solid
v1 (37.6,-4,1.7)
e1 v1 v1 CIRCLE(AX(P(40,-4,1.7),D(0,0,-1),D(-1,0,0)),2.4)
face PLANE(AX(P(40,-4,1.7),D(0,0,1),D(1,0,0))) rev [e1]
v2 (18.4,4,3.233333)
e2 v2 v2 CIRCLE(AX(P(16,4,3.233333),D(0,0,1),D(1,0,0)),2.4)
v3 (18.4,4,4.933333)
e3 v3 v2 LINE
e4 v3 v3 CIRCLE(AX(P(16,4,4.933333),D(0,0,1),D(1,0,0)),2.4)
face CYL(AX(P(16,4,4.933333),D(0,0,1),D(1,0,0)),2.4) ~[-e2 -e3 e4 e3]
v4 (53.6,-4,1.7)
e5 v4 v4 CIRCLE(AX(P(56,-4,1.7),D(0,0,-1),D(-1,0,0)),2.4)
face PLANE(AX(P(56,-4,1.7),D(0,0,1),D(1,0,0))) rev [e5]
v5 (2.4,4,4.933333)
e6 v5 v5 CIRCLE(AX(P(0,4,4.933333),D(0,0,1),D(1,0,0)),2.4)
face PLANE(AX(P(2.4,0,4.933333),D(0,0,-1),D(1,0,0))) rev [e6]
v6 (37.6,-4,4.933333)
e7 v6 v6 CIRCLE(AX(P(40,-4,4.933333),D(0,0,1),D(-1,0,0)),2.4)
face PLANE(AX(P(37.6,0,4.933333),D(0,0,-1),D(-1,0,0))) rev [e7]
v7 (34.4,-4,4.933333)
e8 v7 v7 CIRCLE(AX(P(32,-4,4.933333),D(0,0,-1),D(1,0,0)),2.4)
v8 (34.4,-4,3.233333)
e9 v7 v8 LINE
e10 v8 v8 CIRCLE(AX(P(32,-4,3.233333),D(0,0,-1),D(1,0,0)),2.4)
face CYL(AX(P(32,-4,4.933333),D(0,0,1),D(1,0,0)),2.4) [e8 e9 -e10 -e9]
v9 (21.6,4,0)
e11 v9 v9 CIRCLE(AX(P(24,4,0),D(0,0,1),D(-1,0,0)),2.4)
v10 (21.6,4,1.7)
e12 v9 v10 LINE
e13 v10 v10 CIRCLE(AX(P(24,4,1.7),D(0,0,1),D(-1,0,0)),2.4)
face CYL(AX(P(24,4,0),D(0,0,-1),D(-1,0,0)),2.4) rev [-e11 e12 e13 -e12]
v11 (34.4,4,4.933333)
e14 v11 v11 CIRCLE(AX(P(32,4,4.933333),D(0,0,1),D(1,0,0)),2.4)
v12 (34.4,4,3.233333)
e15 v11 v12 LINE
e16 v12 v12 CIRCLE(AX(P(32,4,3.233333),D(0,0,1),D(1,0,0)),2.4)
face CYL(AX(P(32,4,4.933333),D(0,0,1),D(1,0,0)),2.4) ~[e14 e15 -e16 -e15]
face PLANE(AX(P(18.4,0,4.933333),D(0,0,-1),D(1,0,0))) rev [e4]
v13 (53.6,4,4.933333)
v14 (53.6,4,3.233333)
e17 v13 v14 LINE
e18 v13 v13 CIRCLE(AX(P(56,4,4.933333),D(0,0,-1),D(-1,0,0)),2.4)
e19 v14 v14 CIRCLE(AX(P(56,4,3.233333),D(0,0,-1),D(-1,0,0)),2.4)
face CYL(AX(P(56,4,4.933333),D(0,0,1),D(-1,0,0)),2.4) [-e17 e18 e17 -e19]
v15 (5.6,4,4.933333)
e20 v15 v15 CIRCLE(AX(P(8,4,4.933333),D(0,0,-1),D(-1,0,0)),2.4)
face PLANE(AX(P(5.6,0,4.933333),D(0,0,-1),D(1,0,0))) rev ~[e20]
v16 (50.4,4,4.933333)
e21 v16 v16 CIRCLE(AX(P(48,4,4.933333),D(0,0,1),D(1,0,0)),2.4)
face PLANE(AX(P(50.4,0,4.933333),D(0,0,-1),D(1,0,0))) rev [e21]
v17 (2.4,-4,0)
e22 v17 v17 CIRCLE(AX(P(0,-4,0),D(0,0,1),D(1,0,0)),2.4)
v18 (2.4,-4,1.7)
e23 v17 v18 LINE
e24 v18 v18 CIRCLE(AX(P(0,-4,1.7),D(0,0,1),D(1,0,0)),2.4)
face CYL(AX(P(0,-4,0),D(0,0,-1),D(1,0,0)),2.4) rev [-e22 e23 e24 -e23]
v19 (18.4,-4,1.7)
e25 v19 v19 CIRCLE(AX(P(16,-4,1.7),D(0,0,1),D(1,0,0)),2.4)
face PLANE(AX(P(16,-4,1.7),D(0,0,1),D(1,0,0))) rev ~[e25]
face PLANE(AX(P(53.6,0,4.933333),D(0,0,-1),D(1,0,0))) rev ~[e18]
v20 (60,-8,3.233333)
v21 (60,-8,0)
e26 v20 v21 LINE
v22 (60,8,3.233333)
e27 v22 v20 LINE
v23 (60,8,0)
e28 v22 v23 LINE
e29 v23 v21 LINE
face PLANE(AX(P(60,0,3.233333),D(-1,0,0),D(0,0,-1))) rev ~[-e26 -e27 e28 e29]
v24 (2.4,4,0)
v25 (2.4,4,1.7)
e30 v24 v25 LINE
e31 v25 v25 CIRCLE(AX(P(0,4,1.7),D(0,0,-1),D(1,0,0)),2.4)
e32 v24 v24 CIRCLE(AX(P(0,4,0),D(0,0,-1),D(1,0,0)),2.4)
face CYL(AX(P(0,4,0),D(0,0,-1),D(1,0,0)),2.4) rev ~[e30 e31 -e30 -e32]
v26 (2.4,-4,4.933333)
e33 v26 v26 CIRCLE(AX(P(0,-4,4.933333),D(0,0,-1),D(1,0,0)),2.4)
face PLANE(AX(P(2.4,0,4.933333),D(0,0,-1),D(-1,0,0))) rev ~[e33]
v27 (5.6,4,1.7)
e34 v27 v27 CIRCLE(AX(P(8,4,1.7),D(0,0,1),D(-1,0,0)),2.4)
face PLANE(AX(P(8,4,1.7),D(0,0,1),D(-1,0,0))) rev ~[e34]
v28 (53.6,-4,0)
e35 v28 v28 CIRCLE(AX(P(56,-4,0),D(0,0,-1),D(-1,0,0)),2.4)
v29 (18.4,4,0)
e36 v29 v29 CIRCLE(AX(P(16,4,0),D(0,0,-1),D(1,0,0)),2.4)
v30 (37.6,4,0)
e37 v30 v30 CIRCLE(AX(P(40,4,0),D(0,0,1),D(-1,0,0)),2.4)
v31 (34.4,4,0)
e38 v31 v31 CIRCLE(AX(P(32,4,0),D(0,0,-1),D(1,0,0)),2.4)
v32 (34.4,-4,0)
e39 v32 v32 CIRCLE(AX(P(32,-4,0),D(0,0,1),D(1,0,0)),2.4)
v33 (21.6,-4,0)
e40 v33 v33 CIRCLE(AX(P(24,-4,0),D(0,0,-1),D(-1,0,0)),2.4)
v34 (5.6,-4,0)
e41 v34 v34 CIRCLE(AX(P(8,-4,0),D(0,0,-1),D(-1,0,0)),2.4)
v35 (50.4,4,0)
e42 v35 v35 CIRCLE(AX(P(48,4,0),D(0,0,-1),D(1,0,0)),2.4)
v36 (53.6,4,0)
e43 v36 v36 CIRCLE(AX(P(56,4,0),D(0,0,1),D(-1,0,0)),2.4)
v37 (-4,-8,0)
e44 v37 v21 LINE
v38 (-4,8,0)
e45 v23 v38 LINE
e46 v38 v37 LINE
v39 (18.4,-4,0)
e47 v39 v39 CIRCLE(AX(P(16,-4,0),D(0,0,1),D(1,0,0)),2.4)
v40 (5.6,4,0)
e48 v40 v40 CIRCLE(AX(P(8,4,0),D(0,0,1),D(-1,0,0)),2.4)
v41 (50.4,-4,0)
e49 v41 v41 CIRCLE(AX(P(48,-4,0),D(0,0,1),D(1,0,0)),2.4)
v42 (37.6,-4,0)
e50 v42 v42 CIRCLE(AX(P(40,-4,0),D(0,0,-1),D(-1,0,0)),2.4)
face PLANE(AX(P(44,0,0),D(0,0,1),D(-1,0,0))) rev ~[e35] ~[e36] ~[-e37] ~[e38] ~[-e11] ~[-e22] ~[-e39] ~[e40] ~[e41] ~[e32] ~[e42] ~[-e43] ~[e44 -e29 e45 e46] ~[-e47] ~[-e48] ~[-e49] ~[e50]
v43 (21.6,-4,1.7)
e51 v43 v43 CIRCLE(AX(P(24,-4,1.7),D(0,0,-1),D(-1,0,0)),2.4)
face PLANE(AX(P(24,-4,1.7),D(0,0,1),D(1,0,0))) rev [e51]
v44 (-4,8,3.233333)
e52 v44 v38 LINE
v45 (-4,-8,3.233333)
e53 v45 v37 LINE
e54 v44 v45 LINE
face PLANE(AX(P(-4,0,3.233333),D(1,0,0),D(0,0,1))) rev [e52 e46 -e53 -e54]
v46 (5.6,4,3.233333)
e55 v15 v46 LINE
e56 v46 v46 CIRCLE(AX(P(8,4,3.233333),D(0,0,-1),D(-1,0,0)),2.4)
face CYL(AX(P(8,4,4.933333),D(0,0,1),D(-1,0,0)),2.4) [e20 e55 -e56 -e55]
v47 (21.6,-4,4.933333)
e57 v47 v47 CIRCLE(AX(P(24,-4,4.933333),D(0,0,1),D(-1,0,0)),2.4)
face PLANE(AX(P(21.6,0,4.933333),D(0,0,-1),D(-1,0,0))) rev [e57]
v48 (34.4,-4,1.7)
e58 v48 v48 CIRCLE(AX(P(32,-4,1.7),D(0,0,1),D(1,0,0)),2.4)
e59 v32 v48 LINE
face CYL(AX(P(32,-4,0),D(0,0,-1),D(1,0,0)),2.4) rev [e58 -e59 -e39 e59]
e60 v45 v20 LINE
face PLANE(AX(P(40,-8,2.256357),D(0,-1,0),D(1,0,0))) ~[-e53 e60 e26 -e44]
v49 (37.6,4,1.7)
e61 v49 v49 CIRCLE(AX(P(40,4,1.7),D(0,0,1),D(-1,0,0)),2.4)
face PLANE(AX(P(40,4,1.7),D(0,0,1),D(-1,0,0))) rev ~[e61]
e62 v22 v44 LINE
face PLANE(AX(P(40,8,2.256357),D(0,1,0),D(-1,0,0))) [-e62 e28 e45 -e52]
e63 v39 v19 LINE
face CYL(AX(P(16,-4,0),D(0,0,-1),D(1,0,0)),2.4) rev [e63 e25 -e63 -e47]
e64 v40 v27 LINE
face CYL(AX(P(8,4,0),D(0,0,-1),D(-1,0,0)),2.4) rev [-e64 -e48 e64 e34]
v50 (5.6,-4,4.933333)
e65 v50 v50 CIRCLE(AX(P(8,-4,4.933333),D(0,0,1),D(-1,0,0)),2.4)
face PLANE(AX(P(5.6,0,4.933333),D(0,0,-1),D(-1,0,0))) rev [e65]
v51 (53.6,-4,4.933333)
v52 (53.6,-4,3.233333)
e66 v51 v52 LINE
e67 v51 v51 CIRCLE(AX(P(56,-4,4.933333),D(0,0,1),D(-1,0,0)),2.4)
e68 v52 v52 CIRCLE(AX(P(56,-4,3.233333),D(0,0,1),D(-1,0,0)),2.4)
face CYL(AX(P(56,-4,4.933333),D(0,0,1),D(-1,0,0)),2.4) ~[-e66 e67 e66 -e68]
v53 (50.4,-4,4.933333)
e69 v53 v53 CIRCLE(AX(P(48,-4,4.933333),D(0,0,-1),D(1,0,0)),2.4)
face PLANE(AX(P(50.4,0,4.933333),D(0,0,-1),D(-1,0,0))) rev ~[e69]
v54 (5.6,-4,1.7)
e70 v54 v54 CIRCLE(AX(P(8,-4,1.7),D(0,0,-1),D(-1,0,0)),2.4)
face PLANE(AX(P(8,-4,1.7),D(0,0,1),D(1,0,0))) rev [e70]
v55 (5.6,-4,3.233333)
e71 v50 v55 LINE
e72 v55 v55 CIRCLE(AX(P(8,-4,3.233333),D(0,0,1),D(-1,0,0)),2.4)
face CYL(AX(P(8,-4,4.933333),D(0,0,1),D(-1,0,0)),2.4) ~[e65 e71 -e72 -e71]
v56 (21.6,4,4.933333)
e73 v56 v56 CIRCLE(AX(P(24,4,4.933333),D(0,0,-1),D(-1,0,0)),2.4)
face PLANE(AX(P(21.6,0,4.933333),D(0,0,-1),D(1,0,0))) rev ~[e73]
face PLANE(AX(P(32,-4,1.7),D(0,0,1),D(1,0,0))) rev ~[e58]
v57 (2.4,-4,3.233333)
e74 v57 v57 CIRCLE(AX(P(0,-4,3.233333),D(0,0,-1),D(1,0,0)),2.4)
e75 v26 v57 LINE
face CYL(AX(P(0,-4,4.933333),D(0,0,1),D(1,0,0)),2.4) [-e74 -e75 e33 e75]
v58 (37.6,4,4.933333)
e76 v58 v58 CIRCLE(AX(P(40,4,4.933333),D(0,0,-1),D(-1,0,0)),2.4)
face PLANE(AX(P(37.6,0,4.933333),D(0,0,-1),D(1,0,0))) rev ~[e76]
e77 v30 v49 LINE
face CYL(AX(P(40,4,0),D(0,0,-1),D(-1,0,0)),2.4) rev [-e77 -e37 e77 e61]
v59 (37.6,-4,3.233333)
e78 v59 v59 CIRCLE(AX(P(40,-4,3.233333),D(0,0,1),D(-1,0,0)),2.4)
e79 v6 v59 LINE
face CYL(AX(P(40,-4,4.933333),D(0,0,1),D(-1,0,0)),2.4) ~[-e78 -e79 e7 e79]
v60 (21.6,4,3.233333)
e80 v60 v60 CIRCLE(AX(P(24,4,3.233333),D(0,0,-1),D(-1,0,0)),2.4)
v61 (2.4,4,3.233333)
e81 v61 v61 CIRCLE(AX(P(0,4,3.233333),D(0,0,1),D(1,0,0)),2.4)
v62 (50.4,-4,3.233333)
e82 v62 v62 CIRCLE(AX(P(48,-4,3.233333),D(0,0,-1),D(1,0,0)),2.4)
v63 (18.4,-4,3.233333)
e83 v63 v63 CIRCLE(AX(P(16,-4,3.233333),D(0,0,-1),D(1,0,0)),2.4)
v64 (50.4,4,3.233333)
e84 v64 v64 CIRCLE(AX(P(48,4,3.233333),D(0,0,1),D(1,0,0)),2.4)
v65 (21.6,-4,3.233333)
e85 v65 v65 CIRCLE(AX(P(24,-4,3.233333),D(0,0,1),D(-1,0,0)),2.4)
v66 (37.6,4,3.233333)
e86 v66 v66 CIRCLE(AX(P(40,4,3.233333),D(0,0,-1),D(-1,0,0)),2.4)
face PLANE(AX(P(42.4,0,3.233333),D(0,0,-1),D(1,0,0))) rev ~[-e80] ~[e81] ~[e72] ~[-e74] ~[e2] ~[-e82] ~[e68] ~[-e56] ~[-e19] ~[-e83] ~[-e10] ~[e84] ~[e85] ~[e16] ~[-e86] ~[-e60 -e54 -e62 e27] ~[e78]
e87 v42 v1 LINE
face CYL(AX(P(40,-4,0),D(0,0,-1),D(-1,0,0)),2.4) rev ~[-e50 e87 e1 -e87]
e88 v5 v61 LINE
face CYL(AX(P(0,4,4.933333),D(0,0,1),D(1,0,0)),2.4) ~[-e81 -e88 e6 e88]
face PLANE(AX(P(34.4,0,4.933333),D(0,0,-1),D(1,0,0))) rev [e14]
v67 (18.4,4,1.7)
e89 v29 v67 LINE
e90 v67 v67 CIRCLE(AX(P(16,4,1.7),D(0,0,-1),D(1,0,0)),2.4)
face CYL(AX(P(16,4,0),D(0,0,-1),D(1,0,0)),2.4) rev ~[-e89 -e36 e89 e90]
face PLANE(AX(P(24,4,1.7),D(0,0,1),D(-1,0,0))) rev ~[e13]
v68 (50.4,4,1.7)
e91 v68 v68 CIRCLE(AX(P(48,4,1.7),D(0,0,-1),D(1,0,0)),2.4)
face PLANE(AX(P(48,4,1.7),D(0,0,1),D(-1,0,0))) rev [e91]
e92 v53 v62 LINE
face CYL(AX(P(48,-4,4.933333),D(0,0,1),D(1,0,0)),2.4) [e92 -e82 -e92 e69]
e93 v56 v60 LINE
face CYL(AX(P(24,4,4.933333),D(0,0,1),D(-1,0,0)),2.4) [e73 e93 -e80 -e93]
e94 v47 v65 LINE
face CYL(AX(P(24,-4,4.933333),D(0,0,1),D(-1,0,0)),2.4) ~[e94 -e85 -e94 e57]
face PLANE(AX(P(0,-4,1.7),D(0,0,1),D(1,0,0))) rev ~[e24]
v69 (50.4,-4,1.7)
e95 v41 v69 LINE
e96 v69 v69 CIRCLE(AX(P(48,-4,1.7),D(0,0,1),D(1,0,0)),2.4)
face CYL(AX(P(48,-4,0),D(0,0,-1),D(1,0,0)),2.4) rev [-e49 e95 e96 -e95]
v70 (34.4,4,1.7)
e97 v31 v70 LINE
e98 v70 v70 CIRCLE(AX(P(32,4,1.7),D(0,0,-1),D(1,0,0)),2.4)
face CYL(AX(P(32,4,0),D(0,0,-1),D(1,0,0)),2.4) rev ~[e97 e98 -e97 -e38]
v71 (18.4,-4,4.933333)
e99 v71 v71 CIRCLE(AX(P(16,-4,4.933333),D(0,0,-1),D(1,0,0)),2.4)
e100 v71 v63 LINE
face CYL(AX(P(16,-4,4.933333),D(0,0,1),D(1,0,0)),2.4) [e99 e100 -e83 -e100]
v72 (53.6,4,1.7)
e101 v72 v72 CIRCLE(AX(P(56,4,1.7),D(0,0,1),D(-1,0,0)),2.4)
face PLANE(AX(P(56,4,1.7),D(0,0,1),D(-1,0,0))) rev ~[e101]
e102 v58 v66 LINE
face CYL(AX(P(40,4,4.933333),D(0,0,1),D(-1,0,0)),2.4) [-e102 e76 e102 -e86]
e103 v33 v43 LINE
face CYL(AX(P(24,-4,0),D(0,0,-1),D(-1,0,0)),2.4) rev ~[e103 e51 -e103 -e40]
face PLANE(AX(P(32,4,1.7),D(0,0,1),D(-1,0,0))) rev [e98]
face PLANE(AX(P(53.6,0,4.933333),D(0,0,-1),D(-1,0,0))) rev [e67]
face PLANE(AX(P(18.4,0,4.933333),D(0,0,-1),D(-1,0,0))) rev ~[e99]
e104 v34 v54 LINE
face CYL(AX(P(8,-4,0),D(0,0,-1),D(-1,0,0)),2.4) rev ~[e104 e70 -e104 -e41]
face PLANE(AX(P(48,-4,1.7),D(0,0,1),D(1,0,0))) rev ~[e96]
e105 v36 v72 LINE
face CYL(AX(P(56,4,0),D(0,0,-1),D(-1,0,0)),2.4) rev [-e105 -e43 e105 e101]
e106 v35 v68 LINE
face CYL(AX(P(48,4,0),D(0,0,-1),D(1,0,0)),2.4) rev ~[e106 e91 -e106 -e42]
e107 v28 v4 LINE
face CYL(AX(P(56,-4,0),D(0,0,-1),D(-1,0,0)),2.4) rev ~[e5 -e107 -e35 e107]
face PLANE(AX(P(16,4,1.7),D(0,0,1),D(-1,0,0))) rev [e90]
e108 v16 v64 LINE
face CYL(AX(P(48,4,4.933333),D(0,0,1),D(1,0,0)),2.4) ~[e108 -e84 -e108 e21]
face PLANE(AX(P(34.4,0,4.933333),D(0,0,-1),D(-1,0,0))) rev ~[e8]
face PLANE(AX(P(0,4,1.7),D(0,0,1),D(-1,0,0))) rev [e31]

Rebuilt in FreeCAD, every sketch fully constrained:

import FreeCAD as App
import Part
import Sketcher
from FreeCAD import Vector

doc = App.newDocument("Part")
body = doc.addObject("PartDesign::Body", "Body")

# Sketch on XZ plane
sketch1 = body.newObject("Sketcher::SketchObject", "Sketch")
sketch1.AttachmentSupport = (doc.getObject("XZ_Plane"), [""])
sketch1.MapMode = "FlatFace"
sketch1.addGeometry([
    Part.LineSegment(Vector(-2.4, 3.2, 0), Vector(-4, 3.2, 0)),  # 0
    Part.LineSegment(Vector(-4, 3.2, 0), Vector(-4, 0, 0)),  # 1
    Part.LineSegment(Vector(-4, 0, 0), Vector(4, 0, 0)),  # 2
    Part.LineSegment(Vector(4, 0, 0), Vector(4, 3.2, 0)),  # 3
    Part.LineSegment(Vector(4, 3.2, 0), Vector(2.4, 3.2, 0)),  # 4
    Part.LineSegment(Vector(2.4, 3.2, 0), Vector(2.4, 4.9, 0)),  # 5
    Part.LineSegment(Vector(2.4, 4.9, 0), Vector(-2.4, 4.9, 0)),  # 6
    Part.LineSegment(Vector(-2.4, 4.9, 0), Vector(-2.4, 3.2, 0)),  # 7
], False)
sketch1.addConstraint([
    Sketcher.Constraint("Coincident", 0, 2, 1, 1),
    Sketcher.Constraint("Coincident", 1, 2, 2, 1),
    Sketcher.Constraint("Coincident", 2, 2, 3, 1),
    Sketcher.Constraint("Coincident", 3, 2, 4, 1),
    Sketcher.Constraint("Coincident", 4, 2, 5, 1),
    Sketcher.Constraint("Coincident", 5, 2, 6, 1),
    Sketcher.Constraint("Coincident", 6, 2, 7, 1),
    Sketcher.Constraint("Coincident", 7, 2, 0, 1),
    Sketcher.Constraint("Horizontal", 0),
    Sketcher.Constraint("Vertical", 1),
    Sketcher.Constraint("Horizontal", 2),
    Sketcher.Constraint("Vertical", 3),
    Sketcher.Constraint("Horizontal", 4),
    Sketcher.Constraint("Vertical", 5),
    Sketcher.Constraint("Horizontal", 6),
    Sketcher.Constraint("Vertical", 7),
    Sketcher.Constraint("Symmetric", 1, 2, 2, 2, -1, 1),
    Sketcher.Constraint("Symmetric", 4, 2, 7, 2, -2),
    Sketcher.Constraint("DistanceX", 2, 1, 2, 2, 8.0),
    Sketcher.Constraint("DistanceX", 0, 2, 0, 1, 1.6),
    Sketcher.Constraint("DistanceY", 5, 1, 5, 2, 1.7),
    Sketcher.Constraint("DistanceY", 1, 2, 1, 1, 3.233333),
])
pad1 = body.newObject("PartDesign::Pad", "Pad")
pad1.Profile = sketch1
pad1.Length = 8

# Sketch on XY plane
sketch2 = body.newObject("Sketcher::SketchObject", "Sketch001")
sketch2.AttachmentSupport = (doc.getObject("XY_Plane"), [""])
sketch2.MapMode = "FlatFace"
sketch2.AttachmentOffset = App.Placement(Vector(0, 0, 4.933333), App.Rotation())
sketch2.addGeometry([
    Part.LineSegment(Vector(-4, 0, 0), Vector(-4, -8, 0)),  # 0
    Part.LineSegment(Vector(-4, -8, 0), Vector(4, -8, 0)),  # 1
    Part.LineSegment(Vector(4, -8, 0), Vector(4, 0, 0)),  # 2
    Part.LineSegment(Vector(4, 0, 0), Vector(-4, 0, 0)),  # 3
    Part.Circle(Vector(0, -4, 0), Vector(0, 0, 1), 2.4),  # 4
], False)
sketch2.addConstraint([
    Sketcher.Constraint("Coincident", 0, 2, 1, 1),
    Sketcher.Constraint("Coincident", 1, 2, 2, 1),
    Sketcher.Constraint("Coincident", 2, 2, 3, 1),
    Sketcher.Constraint("Coincident", 3, 2, 0, 1),
    Sketcher.Constraint("Vertical", 0),
    Sketcher.Constraint("Horizontal", 1),
    Sketcher.Constraint("Vertical", 2),
    Sketcher.Constraint("Horizontal", 3),
    Sketcher.Constraint("Symmetric", 2, 2, 3, 2, -1, 1),
    Sketcher.Constraint("PointOnObject", 4, 3, -2),
    Sketcher.Constraint("Equal", 3, 0),
    Sketcher.Constraint("Diameter", 4, 4.8),
    Sketcher.Constraint("DistanceX", 1, 1, 1, 2, 8.0),
    Sketcher.Constraint("DistanceY", 4, 3, -1, 1, 4.0),
])
pocket1 = body.newObject("PartDesign::Pocket", "Pocket")
pocket1.Profile = sketch2
pocket1.Length = 1.7

# Sketch on XY plane
sketch3 = body.newObject("Sketcher::SketchObject", "Sketch002")
sketch3.AttachmentSupport = (doc.getObject("XY_Plane"), [""])
sketch3.MapMode = "FlatFace"
sketch3.addGeometry(Part.Circle(Vector(0, -4, 0), Vector(0, 0, 1), 2.4), False)
sketch3.addConstraint([
    Sketcher.Constraint("PointOnObject", 0, 3, -2),
    Sketcher.Constraint("Diameter", 0, 4.8),
    Sketcher.Constraint("DistanceY", 0, 3, -1, 1, 4.0),
])
pocket2 = body.newObject("PartDesign::Pocket", "Pocket001")
pocket2.Profile = sketch3
pocket2.Length = 1.7
pocket2.Reversed = True
body2 = doc.addObject("PartDesign::Body", "Body001")
doc.recompute()

body2.BaseFeature = body
doc.recompute()

mirroring = doc.addObject("Part::Mirroring", "Mirroring")
mirroring.Source = body
mirroring.Base = Vector(4, 0, 0)
mirroring.Normal = Vector(1, 0, 0)
body3 = doc.addObject("PartDesign::Body", "Body002")
body3.BaseFeature = mirroring
boolean = body2.newObject("PartDesign::Boolean", "Boolean")
boolean.Type = "Fuse"
boolean.addObjects([body3])
doc.recompute()
body4 = doc.addObject("PartDesign::Body", "Body003")
doc.recompute()

body4.BaseFeature = body2
doc.recompute()

mirroring2 = doc.addObject("Part::Mirroring", "Mirroring001")
mirroring2.Source = body2
mirroring2.Base = Vector(0, 0, 0)
mirroring2.Normal = Vector(0, -1, 0)
body5 = doc.addObject("PartDesign::Body", "Body004")
body5.BaseFeature = mirroring2
boolean2 = body4.newObject("PartDesign::Boolean", "Boolean001")
boolean2.Type = "Fuse"
boolean2.addObjects([body5])
doc.recompute()
body6 = doc.addObject("PartDesign::Body", "Body005")
doc.recompute()

body6.BaseFeature = body4
doc.recompute()

mirroring3 = doc.addObject("Part::Mirroring", "Mirroring002")
mirroring3.Source = body4
mirroring3.Base = Vector(12, 0, 0)
mirroring3.Normal = Vector(1, 0, 0)
body7 = doc.addObject("PartDesign::Body", "Body006")
body7.BaseFeature = mirroring3
boolean3 = body6.newObject("PartDesign::Boolean", "Boolean002")
boolean3.Type = "Fuse"
boolean3.addObjects([body7])
doc.recompute()
body8 = doc.addObject("PartDesign::Body", "Body007")
doc.recompute()

body8.BaseFeature = body6
doc.recompute()

mirroring4 = doc.addObject("Part::Mirroring", "Mirroring003")
mirroring4.Source = body6
mirroring4.Base = Vector(28, 0, 1.616667)
mirroring4.Normal = Vector(1, 0, 0)
body9 = doc.addObject("PartDesign::Body", "Body008")
body9.BaseFeature = mirroring4
boolean4 = body8.newObject("PartDesign::Boolean", "Boolean003")
boolean4.Type = "Fuse"
boolean4.addObjects([body9])
doc.recompute()
mirroring.Visibility = False
mirroring2.Visibility = False
mirroring3.Visibility = False
mirroring4.Visibility = False

doc.recompute()
